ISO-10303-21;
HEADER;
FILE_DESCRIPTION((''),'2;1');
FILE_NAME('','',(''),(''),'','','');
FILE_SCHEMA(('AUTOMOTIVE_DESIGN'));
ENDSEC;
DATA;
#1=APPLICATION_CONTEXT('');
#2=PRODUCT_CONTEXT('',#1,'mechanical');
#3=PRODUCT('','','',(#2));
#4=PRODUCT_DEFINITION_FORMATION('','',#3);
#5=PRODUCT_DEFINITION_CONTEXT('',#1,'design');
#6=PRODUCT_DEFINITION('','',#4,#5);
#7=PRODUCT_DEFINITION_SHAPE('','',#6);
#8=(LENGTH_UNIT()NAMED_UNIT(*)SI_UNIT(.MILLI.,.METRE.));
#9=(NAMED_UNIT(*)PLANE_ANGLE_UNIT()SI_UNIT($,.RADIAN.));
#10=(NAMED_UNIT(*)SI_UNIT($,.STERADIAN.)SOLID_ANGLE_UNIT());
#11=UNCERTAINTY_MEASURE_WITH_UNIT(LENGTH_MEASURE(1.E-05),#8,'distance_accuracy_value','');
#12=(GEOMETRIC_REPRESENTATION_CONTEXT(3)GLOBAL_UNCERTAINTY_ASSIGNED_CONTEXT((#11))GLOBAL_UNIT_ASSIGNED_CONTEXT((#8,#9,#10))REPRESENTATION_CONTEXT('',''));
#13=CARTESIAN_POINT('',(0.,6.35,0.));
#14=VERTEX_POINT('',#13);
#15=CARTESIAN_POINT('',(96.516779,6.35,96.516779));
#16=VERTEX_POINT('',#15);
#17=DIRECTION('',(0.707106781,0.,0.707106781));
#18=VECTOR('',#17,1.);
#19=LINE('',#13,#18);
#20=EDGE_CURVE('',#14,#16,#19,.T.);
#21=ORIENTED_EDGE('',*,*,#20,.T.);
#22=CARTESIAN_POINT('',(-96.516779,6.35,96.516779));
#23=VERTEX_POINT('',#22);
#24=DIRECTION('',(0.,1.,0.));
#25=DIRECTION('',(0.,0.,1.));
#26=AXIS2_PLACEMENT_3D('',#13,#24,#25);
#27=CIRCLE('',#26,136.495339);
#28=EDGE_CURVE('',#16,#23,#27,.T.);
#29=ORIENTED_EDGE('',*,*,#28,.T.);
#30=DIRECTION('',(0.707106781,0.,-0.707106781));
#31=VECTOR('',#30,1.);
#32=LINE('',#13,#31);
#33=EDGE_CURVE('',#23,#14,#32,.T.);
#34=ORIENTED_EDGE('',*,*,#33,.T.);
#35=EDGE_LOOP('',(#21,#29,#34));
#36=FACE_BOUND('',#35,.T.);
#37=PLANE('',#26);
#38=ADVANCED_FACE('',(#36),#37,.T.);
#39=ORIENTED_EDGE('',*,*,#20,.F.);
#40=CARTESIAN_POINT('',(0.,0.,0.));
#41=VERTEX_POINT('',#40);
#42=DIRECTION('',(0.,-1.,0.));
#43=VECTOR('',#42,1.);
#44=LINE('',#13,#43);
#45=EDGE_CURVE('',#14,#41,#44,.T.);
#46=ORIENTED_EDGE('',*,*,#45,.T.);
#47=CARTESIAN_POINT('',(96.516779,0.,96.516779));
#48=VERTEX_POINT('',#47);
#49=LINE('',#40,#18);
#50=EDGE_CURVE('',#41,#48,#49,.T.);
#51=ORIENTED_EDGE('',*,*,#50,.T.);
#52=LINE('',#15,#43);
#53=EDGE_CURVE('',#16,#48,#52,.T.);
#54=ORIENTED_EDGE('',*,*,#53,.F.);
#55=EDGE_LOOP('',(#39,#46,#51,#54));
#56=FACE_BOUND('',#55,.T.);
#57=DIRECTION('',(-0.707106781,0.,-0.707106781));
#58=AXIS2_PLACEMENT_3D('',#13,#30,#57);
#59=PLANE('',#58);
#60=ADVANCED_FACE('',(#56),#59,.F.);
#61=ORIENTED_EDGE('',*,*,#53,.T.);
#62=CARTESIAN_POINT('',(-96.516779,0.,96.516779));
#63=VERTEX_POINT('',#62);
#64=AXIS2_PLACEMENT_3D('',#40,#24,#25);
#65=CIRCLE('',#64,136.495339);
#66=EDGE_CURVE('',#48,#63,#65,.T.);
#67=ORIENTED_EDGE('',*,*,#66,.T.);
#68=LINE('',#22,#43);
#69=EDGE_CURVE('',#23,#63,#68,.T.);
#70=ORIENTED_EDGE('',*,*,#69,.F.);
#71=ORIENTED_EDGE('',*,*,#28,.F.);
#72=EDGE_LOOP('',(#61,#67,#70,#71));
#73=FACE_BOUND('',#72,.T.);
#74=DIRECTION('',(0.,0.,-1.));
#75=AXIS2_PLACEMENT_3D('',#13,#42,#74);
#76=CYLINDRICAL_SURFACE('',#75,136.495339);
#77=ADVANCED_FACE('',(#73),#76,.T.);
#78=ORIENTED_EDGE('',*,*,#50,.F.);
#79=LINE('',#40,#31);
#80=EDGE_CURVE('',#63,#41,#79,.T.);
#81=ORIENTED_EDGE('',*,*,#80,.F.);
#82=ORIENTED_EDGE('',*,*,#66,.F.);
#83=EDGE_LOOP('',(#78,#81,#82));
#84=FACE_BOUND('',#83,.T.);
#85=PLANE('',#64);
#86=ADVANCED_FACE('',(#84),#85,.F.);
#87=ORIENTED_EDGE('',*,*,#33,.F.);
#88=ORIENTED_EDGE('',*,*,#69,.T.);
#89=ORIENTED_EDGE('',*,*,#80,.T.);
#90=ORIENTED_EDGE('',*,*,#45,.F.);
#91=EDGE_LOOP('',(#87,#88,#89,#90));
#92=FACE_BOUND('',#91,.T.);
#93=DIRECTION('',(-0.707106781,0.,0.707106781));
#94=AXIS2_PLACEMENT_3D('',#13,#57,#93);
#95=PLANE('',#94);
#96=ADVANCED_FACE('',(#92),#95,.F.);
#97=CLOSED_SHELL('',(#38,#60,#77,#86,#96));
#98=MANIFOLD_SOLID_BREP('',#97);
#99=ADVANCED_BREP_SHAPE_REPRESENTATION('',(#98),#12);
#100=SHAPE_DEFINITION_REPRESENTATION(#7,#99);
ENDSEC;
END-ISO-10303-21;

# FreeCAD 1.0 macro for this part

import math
import FreeCAD as App
import Part
import Sketcher

V = App.Vector

doc = App.newDocument("Part")
params = doc.addObject("Spreadsheet::Sheet", "Params")
for row, (alias, value) in enumerate([
    ("pad1_length", "0.25 in"),
], start=1):
    params.set(f"A{row}", alias)
    params.set(f"B{row}", "=" + value)
    params.setAlias(f"B{row}", alias)

body = doc.addObject("PartDesign::Body", "Body")

# Sketch on XZ plane
sketch1 = body.newObject("Sketcher::SketchObject", "Sketch")
sketch1.AttachmentSupport = (doc.getObject("XZ_Plane"), [""])
sketch1.MapMode = "FlatFace"
sketch1.addGeometry([
    Part.LineSegment(V(-97, 97, 0), V(0, 0, 0)),
    Part.LineSegment(V(0, 0, 0), V(97, 97, 0)),
    Part.ArcOfCircle(Part.Circle(V(0, 0, 0), V(0, 0, 1), 136), math.radians(135), math.radians(405)),
], False)
sketch1.addConstraint([
    Sketcher.Constraint("Coincident", 0, 2, 1, 1),
    Sketcher.Constraint("Coincident", 1, 2, 2, 2),
    Sketcher.Constraint("Coincident", 2, 1, 0, 1),
    Sketcher.Constraint("Coincident", 2, 3, -1, 1),
    Sketcher.Constraint("Coincident", 0, 2, -1, 1),
    Sketcher.Constraint("Perpendicular", 0, 1),
    Sketcher.Constraint("Horizontal", 1, 2, 2, 1),
    Sketcher.Constraint("Radius", 2, 136.495339),
])
pad1 = body.newObject("PartDesign::Pad", "Pad")
pad1.Profile = sketch1
pad1.setExpression("Length", "Params.pad1_length")
pad1.Reversed = True

doc.recompute()
